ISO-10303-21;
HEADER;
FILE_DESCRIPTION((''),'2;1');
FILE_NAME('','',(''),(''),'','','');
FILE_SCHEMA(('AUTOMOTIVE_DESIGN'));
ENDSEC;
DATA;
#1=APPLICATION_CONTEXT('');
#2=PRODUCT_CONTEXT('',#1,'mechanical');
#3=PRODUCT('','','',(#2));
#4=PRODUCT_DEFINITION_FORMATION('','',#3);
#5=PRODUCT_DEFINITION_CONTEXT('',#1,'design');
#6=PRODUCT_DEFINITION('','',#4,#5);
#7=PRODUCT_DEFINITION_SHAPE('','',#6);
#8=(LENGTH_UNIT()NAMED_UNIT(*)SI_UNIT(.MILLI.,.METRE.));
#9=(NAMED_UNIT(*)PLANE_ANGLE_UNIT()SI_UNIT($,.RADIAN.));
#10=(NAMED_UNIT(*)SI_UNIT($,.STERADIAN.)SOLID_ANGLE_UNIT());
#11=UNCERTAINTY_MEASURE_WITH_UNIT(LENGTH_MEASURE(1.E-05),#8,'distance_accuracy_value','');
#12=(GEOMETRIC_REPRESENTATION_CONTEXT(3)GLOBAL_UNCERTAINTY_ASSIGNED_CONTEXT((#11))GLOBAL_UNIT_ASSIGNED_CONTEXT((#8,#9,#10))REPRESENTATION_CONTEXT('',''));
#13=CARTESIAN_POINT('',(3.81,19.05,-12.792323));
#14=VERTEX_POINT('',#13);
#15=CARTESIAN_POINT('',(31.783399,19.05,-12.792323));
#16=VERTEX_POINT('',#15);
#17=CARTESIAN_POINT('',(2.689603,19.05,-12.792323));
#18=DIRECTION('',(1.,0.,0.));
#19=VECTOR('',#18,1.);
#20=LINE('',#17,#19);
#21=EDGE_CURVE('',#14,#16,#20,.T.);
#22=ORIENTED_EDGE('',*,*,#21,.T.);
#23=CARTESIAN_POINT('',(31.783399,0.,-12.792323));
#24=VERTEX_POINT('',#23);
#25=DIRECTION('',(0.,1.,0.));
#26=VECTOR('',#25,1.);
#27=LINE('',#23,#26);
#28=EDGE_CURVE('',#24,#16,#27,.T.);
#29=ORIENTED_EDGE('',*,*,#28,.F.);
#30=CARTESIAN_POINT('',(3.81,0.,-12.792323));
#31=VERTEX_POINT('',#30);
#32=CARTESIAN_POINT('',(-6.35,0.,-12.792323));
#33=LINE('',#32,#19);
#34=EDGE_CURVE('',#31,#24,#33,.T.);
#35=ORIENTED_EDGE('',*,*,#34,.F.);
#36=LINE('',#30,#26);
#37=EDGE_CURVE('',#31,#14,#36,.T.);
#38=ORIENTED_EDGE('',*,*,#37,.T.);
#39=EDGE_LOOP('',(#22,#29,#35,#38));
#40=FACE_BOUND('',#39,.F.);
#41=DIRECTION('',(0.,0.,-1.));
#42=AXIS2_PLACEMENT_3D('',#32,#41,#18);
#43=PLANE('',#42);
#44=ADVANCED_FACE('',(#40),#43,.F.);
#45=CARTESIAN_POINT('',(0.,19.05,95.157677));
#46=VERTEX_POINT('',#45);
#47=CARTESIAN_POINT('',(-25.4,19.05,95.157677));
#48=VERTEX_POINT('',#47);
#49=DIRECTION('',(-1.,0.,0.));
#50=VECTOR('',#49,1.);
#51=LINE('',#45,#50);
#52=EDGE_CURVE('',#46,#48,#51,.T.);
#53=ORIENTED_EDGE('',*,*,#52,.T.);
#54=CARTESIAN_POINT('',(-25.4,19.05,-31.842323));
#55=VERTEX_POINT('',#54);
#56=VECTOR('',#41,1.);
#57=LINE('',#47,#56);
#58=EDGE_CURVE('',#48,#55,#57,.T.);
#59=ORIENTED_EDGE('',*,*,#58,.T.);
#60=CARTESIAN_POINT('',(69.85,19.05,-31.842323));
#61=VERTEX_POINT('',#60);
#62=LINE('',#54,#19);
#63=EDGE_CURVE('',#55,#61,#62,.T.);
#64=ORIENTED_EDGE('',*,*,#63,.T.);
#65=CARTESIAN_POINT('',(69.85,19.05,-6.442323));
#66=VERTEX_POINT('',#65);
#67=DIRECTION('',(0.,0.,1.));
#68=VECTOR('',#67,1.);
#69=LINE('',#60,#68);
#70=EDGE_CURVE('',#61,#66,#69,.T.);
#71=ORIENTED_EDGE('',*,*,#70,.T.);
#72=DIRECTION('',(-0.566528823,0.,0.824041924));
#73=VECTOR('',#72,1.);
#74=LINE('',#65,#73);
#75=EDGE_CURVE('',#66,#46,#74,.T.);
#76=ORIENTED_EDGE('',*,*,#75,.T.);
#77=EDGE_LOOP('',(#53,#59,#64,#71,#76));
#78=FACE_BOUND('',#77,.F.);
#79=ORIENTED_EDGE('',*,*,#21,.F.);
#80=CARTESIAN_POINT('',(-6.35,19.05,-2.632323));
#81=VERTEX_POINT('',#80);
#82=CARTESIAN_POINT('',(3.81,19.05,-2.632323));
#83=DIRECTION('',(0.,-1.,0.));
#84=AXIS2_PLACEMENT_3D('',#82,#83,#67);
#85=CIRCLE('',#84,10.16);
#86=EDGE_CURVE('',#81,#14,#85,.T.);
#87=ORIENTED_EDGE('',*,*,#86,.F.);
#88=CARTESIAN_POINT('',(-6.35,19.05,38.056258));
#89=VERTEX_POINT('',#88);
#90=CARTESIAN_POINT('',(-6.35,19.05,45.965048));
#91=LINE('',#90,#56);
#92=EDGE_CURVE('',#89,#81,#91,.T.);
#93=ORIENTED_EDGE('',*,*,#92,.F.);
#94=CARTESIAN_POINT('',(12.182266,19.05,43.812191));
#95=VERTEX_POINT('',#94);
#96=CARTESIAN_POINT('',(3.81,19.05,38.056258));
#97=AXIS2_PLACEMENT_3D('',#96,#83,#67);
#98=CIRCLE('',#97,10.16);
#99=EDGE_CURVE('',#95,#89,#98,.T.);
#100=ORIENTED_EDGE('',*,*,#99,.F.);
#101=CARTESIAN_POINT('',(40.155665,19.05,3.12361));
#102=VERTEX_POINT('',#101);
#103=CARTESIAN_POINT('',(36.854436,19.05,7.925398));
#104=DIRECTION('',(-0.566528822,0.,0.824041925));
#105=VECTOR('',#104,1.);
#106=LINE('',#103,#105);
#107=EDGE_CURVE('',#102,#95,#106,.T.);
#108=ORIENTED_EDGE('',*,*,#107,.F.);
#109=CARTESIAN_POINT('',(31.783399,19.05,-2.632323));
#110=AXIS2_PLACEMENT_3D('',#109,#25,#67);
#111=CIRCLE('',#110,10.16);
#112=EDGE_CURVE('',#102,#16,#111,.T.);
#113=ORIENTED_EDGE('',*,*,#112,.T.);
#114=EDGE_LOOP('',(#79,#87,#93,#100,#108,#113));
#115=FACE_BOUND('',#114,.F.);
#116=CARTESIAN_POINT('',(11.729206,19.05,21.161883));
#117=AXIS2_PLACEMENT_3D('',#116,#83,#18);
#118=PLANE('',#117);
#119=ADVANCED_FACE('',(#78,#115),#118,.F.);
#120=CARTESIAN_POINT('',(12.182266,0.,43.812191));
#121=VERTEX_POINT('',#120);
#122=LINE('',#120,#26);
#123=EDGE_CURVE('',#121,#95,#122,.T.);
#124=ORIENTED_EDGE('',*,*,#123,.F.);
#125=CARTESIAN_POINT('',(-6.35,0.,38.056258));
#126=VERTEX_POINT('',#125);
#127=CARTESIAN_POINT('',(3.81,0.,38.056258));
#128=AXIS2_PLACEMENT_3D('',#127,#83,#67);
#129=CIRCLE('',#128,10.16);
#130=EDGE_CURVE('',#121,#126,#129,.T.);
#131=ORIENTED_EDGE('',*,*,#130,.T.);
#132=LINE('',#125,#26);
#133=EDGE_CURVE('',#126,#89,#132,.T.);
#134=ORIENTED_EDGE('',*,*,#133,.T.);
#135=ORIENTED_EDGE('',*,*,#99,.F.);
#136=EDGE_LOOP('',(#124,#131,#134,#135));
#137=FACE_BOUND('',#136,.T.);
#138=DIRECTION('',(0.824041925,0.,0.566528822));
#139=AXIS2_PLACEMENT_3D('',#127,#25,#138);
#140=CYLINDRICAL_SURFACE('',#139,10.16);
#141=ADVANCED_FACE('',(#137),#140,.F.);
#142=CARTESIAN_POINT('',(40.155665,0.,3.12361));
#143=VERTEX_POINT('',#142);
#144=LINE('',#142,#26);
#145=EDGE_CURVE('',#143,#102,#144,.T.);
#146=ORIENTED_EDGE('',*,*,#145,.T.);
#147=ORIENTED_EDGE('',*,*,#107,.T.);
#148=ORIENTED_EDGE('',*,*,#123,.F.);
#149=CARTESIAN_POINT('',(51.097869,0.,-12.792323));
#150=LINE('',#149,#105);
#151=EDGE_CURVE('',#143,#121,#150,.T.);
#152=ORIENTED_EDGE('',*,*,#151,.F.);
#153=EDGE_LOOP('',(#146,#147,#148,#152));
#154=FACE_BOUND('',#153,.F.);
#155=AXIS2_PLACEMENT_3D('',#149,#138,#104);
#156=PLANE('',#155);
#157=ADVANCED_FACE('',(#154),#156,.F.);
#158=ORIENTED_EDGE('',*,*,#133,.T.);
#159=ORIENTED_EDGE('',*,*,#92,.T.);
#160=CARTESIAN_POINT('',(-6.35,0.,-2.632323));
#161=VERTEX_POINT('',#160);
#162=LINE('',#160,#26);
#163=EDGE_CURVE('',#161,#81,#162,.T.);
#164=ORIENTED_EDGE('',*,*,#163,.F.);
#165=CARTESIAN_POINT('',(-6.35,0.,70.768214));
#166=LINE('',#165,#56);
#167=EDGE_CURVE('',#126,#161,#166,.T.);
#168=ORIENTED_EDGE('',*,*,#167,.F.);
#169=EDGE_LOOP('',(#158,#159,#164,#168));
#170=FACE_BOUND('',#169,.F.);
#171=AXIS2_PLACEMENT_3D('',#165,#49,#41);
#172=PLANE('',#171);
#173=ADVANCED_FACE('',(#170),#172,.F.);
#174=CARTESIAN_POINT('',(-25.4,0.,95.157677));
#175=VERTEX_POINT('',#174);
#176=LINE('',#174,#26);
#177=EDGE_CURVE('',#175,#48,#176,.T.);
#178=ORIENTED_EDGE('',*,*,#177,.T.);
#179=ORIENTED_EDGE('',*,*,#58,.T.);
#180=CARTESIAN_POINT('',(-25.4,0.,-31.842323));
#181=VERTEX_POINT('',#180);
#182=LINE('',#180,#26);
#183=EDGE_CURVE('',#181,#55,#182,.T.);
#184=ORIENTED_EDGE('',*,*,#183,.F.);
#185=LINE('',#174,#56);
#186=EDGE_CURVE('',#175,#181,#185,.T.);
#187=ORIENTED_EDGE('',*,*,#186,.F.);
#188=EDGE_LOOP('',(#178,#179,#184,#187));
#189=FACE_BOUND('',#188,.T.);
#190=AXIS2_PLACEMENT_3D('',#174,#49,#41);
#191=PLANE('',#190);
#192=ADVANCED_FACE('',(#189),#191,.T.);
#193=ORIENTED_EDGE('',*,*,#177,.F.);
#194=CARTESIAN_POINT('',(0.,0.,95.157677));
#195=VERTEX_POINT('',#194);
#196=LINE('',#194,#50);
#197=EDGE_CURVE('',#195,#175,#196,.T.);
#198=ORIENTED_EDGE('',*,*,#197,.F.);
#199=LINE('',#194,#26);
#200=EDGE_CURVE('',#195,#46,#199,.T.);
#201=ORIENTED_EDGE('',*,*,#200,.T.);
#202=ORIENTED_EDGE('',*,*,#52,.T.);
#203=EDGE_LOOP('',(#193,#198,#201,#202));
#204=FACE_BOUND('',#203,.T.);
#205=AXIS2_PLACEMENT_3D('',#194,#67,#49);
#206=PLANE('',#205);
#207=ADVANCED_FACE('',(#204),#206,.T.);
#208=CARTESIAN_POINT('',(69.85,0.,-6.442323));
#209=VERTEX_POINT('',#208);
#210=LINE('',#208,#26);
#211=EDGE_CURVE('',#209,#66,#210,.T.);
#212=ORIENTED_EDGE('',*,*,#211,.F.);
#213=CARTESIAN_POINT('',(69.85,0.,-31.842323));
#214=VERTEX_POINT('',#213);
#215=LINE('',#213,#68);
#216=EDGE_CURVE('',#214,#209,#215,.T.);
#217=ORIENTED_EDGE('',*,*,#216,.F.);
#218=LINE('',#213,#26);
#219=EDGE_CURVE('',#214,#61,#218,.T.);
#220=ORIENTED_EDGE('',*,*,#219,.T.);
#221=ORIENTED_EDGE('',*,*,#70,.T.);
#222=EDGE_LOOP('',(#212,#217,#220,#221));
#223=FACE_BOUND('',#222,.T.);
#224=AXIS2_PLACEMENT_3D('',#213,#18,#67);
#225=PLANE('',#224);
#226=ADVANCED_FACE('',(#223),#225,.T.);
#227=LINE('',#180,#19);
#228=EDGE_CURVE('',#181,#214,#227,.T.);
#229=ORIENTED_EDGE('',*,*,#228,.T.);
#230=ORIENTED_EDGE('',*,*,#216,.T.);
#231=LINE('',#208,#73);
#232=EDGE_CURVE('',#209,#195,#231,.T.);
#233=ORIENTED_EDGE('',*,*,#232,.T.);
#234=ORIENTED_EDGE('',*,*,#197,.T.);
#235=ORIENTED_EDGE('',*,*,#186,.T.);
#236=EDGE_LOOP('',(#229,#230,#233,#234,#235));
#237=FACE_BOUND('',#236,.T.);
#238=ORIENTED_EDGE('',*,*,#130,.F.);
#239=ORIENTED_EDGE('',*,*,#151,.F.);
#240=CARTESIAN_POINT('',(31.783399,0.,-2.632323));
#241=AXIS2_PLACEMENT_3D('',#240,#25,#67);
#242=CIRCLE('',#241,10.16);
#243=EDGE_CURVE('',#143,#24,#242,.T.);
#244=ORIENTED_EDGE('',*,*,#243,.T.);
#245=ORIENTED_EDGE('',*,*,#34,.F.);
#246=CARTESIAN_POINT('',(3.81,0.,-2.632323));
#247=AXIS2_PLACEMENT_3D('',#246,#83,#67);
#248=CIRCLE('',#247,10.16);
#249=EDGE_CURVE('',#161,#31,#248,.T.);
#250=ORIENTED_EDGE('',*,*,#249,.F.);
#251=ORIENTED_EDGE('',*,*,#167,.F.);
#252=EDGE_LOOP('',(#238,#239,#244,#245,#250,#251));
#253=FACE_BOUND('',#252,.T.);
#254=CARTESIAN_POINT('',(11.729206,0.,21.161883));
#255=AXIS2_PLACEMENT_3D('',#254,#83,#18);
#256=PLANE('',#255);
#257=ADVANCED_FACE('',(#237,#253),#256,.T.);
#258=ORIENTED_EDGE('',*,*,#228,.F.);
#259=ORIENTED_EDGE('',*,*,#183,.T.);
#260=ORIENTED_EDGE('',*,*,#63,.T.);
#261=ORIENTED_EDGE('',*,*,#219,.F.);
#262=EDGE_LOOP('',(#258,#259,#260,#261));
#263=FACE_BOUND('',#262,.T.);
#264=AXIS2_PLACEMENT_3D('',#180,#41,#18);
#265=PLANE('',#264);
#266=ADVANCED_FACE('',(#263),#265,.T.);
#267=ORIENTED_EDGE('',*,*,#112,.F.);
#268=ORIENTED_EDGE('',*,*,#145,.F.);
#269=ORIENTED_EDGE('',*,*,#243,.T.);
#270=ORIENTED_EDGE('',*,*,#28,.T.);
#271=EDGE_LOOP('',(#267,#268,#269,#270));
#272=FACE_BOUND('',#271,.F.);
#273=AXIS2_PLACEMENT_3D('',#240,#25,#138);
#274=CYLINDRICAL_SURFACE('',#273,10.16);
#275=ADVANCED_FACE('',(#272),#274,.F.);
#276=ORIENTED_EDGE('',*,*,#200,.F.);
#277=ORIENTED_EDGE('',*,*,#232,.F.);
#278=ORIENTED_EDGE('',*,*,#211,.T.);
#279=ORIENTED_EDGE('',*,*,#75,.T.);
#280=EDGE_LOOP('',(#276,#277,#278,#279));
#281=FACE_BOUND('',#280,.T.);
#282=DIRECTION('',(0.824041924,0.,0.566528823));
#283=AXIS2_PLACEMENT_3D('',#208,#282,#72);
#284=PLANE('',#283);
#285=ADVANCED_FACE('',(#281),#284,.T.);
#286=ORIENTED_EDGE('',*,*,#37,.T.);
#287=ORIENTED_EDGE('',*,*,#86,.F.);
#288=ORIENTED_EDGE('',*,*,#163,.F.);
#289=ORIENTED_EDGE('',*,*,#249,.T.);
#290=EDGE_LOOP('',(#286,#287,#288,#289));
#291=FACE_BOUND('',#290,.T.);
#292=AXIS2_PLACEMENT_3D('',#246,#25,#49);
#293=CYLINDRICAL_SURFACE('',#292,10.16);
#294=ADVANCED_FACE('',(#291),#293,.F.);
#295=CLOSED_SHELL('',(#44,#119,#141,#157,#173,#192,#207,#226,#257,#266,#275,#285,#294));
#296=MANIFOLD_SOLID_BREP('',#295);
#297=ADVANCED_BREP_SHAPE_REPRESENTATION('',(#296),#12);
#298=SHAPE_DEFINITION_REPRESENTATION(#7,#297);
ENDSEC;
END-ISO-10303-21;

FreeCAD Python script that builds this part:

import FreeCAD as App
import Part
import Sketcher
Q = App.Units.Quantity


def edges_at(feature, points):
    """Names of the edges that pass closest to the given points."""
    edges = feature.Shape.Edges
    near = lambda p: min(range(len(edges)), key=lambda i: edges[i].distToShape(Part.Vertex(*p))[0])
    return sorted({f"Edge{near(p) + 1}" for p in points})

doc = App.newDocument("Part")
body = doc.addObject("PartDesign::Body", "Body")

# Sketch on XZ plane
sketch1 = body.newObject("Sketcher::SketchObject", "Sketch")
sketch1.AttachmentSupport = (doc.getObject("XZ_Plane"), [""])
sketch1.MapMode = "FlatFace"
sketch1.addGeometry(Part.LineSegment(App.Vector(0, 95, 0), App.Vector(-25, 95, 0)), False)
sketch1.addGeometry(Part.LineSegment(App.Vector(-25, 95, 0), App.Vector(-25, -32, 0)), False)
sketch1.addGeometry(Part.LineSegment(App.Vector(-25, -32, 0), App.Vector(70, -32, 0)), False)
sketch1.addGeometry(Part.LineSegment(App.Vector(70, -32, 0), App.Vector(70, -6, 0)), False)
sketch1.addGeometry(Part.LineSegment(App.Vector(70, -6, 0), App.Vector(0, 95, 0)), False)
sketch1.addConstraint(Sketcher.Constraint("Coincident", 0, 2, 1, 1))
sketch1.addConstraint(Sketcher.Constraint("Coincident", 1, 2, 2, 1))
sketch1.addConstraint(Sketcher.Constraint("Coincident", 2, 2, 3, 1))
sketch1.addConstraint(Sketcher.Constraint("Coincident", 3, 2, 4, 1))
sketch1.addConstraint(Sketcher.Constraint("Coincident", 4, 2, 0, 1))
sketch1.addConstraint(Sketcher.Constraint("Horizontal", 0))
sketch1.addConstraint(Sketcher.Constraint("Vertical", 1))
sketch1.addConstraint(Sketcher.Constraint("Horizontal", 2))
sketch1.addConstraint(Sketcher.Constraint("Vertical", 3))
sketch1.addConstraint(Sketcher.Constraint("PointOnObject", 4, 2, -2))
sketch1.addConstraint(Sketcher.Constraint("Equal", 0, 3))
sketch1.addConstraint(Sketcher.Constraint("DistanceX", 0, 2, 0, 1, Q("1 in")))
sketch1.addConstraint(Sketcher.Constraint("DistanceY", 1, 2, 1, 1, Q("5 in")))
sketch1.addConstraint(Sketcher.Constraint("DistanceX", 2, 1, 2, 2, Q("3.75 in")))
sketch1.addConstraint(Sketcher.Constraint("DistanceY", -1, 1, 0, 2, Q("95.157677 mm")))
pad1 = body.newObject("PartDesign::Pad", "Pad")
pad1.Profile = sketch1
pad1.Length = Q("0.75 in")
pad1.Reversed = True

# Sketch on XZ plane
sketch2 = body.newObject("Sketcher::SketchObject", "Sketch001")
sketch2.AttachmentSupport = (doc.getObject("XZ_Plane"), [""])
sketch2.MapMode = "FlatFace"
sketch2.addGeometry(Part.LineSegment(App.Vector(51, -13, 0), App.Vector(-6, 71, 0)), False)
sketch2.addGeometry(Part.LineSegment(App.Vector(-6, 71, 0), App.Vector(-6, -13, 0)), False)
sketch2.addGeometry(Part.LineSegment(App.Vector(-6, -13, 0), App.Vector(51, -13, 0)), False)
sketch2.addConstraint(Sketcher.Constraint("Coincident", 0, 2, 1, 1))
sketch2.addConstraint(Sketcher.Constraint("Coincident", 1, 2, 2, 1))
sketch2.addConstraint(Sketcher.Constraint("Coincident", 2, 2, 0, 1))
sketch2.addConstraint(Sketcher.Constraint("Vertical", 1))
sketch2.addConstraint(Sketcher.Constraint("Horizontal", 2))
sketch2.addConstraint(Sketcher.Constraint("DistanceX", 0, 2, -1, 1, Q("0.25 in")))
sketch2.addConstraint(Sketcher.Constraint("DistanceX", 2, 1, 2, 2, Q("57.447869 mm")))
sketch2.addConstraint(Sketcher.Constraint("Distance", 0, Q("101.403259 mm")))
sketch2.addConstraint(Sketcher.Constraint("DistanceY", -1, 1, 0, 2, Q("70.768214 mm")))
pocket1 = body.newObject("PartDesign::Pocket", "Pocket")
pocket1.Profile = sketch2
pocket1.Type = "ThroughAll"
doc.recompute()

fillet = body.newObject("PartDesign::Fillet", "Fillet")
fillet.Base = (pocket1, edges_at(pocket1, [(-6.35, 9.525, -12.792), (51.098, 9.525, -12.792)]))
fillet.Radius = Q("0.4 in")
doc.recompute()

fillet2 = body.newObject("PartDesign::Fillet", "Fillet001")
fillet2.Base = (fillet, edges_at(fillet, [(-6.35, 9.525, 70.768)]))
fillet2.Radius = Q("0.4 in")

doc.recompute()
